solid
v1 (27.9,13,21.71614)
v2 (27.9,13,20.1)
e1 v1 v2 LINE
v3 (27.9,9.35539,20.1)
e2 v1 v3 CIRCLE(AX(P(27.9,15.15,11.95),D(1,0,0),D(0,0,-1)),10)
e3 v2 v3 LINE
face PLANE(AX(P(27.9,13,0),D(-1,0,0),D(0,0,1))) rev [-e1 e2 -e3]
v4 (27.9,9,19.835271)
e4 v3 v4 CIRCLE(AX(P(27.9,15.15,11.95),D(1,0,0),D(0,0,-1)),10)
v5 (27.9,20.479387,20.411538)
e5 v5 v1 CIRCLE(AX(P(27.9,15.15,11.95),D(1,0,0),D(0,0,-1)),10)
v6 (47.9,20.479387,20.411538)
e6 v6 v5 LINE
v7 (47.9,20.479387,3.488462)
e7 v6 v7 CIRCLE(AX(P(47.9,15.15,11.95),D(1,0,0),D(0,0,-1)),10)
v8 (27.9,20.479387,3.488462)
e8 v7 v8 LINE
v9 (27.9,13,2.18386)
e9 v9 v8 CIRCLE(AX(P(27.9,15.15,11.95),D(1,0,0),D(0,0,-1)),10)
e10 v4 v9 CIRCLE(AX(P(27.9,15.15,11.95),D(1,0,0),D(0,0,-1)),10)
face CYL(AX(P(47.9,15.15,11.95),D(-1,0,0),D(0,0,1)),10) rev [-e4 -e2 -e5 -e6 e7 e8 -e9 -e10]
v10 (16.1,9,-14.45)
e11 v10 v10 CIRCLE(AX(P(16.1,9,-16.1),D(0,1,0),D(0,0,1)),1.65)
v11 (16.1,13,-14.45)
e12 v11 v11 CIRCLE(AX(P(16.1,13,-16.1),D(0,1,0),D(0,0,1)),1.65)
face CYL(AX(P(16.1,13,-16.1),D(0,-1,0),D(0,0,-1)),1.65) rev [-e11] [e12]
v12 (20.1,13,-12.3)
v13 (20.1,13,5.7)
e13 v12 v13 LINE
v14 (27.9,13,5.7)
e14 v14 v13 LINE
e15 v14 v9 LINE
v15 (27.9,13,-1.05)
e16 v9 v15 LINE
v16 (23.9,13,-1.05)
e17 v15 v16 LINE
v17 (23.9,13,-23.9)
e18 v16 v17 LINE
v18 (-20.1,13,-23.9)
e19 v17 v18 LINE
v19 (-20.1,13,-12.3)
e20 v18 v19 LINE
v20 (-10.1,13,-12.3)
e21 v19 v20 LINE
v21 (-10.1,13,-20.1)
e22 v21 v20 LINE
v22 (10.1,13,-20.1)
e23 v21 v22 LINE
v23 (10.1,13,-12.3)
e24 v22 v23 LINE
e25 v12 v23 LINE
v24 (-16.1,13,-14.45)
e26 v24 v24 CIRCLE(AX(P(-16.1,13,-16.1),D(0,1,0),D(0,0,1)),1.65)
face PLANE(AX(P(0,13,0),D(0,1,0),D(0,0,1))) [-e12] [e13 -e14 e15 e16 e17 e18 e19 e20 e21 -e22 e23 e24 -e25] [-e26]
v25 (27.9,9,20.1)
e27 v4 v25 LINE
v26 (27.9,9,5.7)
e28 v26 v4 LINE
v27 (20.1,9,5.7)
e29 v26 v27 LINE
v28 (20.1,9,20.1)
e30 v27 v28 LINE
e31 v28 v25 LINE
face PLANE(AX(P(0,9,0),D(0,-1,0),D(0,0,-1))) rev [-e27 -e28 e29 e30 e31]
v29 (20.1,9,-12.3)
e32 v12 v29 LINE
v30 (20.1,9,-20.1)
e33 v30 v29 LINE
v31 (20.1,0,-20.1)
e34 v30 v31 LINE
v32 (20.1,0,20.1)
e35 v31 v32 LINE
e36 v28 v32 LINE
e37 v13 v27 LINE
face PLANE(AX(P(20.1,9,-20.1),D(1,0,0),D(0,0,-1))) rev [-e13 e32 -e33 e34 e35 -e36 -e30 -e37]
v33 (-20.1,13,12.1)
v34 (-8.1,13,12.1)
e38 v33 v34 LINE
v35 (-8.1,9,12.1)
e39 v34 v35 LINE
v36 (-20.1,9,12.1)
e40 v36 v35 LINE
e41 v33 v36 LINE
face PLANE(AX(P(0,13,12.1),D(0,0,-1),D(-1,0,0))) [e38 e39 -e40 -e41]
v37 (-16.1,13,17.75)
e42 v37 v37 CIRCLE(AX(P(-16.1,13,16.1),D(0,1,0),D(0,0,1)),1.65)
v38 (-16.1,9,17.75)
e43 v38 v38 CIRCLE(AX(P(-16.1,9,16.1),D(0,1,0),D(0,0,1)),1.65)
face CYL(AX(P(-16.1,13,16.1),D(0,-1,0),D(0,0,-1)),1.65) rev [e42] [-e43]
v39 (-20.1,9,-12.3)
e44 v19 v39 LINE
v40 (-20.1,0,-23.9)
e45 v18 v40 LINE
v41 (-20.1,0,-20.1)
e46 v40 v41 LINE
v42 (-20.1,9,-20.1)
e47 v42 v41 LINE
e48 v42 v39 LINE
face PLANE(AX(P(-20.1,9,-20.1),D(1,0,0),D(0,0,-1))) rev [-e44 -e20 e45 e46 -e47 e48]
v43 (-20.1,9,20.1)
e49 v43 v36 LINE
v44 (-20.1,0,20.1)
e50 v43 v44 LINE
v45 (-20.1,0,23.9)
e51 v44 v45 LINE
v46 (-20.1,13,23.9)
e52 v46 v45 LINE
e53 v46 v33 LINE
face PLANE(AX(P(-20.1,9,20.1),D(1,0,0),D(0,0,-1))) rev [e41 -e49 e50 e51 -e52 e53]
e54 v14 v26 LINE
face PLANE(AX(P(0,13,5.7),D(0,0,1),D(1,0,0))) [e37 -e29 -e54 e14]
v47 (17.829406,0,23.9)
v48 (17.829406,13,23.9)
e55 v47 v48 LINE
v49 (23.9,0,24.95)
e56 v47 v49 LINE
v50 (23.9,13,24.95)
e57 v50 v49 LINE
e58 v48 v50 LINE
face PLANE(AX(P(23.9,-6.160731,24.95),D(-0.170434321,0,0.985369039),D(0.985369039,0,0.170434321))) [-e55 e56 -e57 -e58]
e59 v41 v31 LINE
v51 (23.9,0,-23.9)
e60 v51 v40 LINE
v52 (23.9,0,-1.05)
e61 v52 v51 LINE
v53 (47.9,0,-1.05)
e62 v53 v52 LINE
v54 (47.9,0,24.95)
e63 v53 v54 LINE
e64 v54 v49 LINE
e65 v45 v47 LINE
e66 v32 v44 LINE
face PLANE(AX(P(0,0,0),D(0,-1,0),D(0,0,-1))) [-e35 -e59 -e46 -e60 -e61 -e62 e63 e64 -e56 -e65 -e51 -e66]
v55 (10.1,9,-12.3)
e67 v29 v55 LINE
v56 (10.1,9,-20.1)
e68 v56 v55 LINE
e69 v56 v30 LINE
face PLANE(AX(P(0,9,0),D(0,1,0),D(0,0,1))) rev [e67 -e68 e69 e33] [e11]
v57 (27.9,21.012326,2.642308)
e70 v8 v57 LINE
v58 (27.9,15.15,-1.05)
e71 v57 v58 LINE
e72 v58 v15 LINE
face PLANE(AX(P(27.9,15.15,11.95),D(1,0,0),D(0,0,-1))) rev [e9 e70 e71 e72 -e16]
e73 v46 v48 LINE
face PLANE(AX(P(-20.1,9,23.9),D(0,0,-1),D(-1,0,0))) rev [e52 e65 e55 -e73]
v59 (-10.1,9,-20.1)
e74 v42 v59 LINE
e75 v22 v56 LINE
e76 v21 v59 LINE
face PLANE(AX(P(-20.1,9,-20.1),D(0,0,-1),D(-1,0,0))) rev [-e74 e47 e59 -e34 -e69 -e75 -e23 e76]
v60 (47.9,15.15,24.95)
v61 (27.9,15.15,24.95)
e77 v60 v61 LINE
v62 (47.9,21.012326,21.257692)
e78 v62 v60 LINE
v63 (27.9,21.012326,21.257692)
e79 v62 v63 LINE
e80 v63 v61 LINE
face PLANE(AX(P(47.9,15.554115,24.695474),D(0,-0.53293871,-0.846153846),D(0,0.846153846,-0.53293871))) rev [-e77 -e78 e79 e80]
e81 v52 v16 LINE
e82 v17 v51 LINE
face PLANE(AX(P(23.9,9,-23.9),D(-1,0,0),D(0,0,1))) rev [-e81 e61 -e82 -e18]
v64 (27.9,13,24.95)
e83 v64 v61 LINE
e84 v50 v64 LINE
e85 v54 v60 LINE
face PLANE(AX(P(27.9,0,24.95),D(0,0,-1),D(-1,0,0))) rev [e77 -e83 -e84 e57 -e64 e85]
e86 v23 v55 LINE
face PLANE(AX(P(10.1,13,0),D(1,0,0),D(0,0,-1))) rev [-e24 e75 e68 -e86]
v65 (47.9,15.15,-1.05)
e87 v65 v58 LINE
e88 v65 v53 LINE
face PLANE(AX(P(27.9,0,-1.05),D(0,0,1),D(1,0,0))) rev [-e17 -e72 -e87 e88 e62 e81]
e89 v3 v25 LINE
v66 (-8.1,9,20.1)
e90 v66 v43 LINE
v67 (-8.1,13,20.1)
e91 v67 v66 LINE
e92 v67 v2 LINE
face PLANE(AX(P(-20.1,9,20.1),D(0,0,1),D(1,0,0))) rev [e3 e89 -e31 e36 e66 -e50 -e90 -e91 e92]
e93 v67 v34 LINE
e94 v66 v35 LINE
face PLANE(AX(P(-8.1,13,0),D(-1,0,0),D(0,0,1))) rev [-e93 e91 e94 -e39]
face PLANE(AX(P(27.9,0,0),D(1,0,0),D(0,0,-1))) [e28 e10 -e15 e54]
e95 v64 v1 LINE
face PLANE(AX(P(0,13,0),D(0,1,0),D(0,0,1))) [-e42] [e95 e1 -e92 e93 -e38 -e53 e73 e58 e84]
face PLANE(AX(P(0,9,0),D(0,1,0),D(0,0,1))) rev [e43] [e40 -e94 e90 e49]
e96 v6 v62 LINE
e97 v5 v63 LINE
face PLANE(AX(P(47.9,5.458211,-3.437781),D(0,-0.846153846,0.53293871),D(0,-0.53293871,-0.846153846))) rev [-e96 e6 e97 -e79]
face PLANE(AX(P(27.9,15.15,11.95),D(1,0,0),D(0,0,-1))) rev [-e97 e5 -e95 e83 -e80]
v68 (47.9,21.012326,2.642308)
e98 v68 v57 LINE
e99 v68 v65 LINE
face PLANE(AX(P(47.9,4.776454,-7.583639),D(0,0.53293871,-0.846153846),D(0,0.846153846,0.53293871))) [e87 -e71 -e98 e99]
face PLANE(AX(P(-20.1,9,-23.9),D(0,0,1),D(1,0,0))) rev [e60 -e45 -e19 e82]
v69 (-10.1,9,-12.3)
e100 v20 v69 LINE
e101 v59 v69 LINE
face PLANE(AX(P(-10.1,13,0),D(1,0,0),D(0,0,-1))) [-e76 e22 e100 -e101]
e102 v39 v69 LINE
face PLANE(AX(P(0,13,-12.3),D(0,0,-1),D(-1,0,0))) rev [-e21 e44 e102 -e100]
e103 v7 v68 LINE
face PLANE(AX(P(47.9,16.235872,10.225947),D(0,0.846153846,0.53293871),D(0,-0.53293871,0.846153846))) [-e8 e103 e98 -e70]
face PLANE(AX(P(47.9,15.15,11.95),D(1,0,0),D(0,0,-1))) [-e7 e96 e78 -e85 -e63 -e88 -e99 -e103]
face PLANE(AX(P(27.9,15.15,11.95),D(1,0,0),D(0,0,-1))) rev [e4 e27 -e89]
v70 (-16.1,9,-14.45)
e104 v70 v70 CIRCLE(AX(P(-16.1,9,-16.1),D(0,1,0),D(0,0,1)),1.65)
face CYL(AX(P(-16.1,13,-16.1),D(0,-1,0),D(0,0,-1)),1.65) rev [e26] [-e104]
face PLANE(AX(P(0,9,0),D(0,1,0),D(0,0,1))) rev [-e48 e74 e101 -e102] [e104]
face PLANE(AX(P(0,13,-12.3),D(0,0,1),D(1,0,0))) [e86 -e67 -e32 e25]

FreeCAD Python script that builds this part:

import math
import FreeCAD as App
import Part
import Sketcher
Q = App.Units.Quantity

doc = App.newDocument("Part")
params = doc.addObject("Spreadsheet::Sheet", "Params")
for row, (alias, value) in enumerate([
    ("sketch1_width", "44 mm"),
    ("sketch1_width2", "40.2 mm"),
    ("sketch1_height", "3.8 mm"),
    ("pad1_length", "9 mm"),
    ("sketch2_width", "9 mm"),
    ("sketch2_height", "26 mm"),
    ("pad2_length", "4 mm"),
    ("sketch3_radius", "10 mm"),
    ("sketch3_height", "26 mm"),
    ("sketch3_length", "1 mm"),
    ("sketch3_width", "15.15 mm"),
    ("pad3_length", "20 mm"),
    ("sketch4_height", "1.05 mm"),
    ("pad4_length", "9 mm"),
    ("sketch5_diameter", "3.3 mm"),
    ("sketch5_width", "4 mm"),
    ("sketch5_width2", "36 mm"),
    ("sketch5_width3", "12 mm"),
    ("sketch5_width4", "10 mm"),
    ("pad5_length", "4 mm"),
], start=1):
    params.set(f"A{row}", alias)
    params.set(f"B{row}", "=" + value)
    params.setAlias(f"B{row}", alias)

body = doc.addObject("PartDesign::Body", "Body")

sketch1 = doc.addObject("Sketcher::SketchObject", "Sketch")
body.addObject(sketch1)
sketch1.AttachmentSupport = (doc.XZ_Plane, [""])
sketch1.MapMode = "FlatFace"
sketch1.addGeometry([
    Part.LineSegment(App.Vector(-20.1, -20.1, 0), App.Vector(20.1, -20.1, 0)),
    Part.LineSegment(App.Vector(20.1, -20.1, 0), App.Vector(20.1, 20.1, 0)),
    Part.LineSegment(App.Vector(20.1, 20.1, 0), App.Vector(-20.1, 20.1, 0)),
    Part.LineSegment(App.Vector(-20.1, 20.1, 0), App.Vector(-20.1, 23.9, 0)),
    Part.LineSegment(App.Vector(-20.1, 23.9, 0), App.Vector(23.9, 23.9, 0)),
    Part.LineSegment(App.Vector(23.9, 23.9, 0), App.Vector(23.9, -23.9, 0)),
    Part.LineSegment(App.Vector(23.9, -23.9, 0), App.Vector(-20.1, -23.9, 0)),
    Part.LineSegment(App.Vector(-20.1, -23.9, 0), App.Vector(-20.1, -20.1, 0)),
], False)
sketch1.addConstraint([
    Sketcher.Constraint("Coincident", 0, 2, 1, 1),
    Sketcher.Constraint("Coincident", 1, 2, 2, 1),
    Sketcher.Constraint("Coincident", 2, 2, 3, 1),
    Sketcher.Constraint("Coincident", 3, 2, 4, 1),
    Sketcher.Constraint("Coincident", 4, 2, 5, 1),
    Sketcher.Constraint("Coincident", 5, 2, 6, 1),
    Sketcher.Constraint("Coincident", 6, 2, 7, 1),
    Sketcher.Constraint("Coincident", 7, 2, 0, 1),
    Sketcher.Constraint("Horizontal", 0),
    Sketcher.Constraint("Vertical", 1),
    Sketcher.Constraint("Horizontal", 2),
    Sketcher.Constraint("Vertical", 3),
    Sketcher.Constraint("Horizontal", 4),
    Sketcher.Constraint("Vertical", 5),
    Sketcher.Constraint("Horizontal", 6),
    Sketcher.Constraint("Vertical", 7),
    Sketcher.Constraint("Symmetric", 0, 2, 2, 2, -1, 1),
    Sketcher.Constraint("Symmetric", 3, 2, 6, 2, -1),
    Sketcher.Constraint("Equal", 2, 1),
    Sketcher.Constraint("DistanceX", 4, 1, 4, 2, Q("44 mm")),
    Sketcher.Constraint("DistanceX", 0, 1, 0, 2, Q("40.2 mm")),
    Sketcher.Constraint("DistanceY", 3, 1, 3, 2, Q("3.8 mm")),
])
sketch1.setExpression("Constraints[19]", "Params.sketch1_width")
sketch1.setExpression("Constraints[20]", "Params.sketch1_width2")
sketch1.setExpression("Constraints[21]", "Params.sketch1_height")
pad1 = doc.addObject("PartDesign::Pad", "Pad")
body.addObject(pad1)
pad1.Profile = sketch1
pad1.setExpression("Length", "Params.pad1_length")
pad1.Reversed = True

sketch2 = doc.addObject("Sketcher::SketchObject", "Sketch001")
body.addObject(sketch2)
sketch2.AttachmentSupport = (doc.YZ_Plane, [""])
sketch2.MapMode = "FlatFace"
sketch2.AttachmentOffset = App.Placement(App.Vector(0, 0, 23.9), App.Rotation())
sketch2.addGeometry([
    Part.LineSegment(App.Vector(9, 24.95, 0), App.Vector(0, 24.95, 0)),
    Part.LineSegment(App.Vector(0, 24.95, 0), App.Vector(0, -1.05, 0)),
    Part.LineSegment(App.Vector(0, -1.05, 0), App.Vector(9, -1.05, 0)),
    Part.LineSegment(App.Vector(9, -1.05, 0), App.Vector(9, 24.95, 0)),
], False)
sketch2.addConstraint([
    Sketcher.Constraint("Coincident", 0, 2, 1, 1),
    Sketcher.Constraint("Coincident", 1, 2, 2, 1),
    Sketcher.Constraint("Coincident", 2, 2, 3, 1),
    Sketcher.Constraint("Coincident", 3, 2, 0, 1),
    Sketcher.Constraint("Horizontal", 0),
    Sketcher.Constraint("Vertical", 1),
    Sketcher.Constraint("Horizontal", 2),
    Sketcher.Constraint("Vertical", 3),
    Sketcher.Constraint("PointOnObject", 0, 2, -2),
    Sketcher.Constraint("DistanceX", 0, 2, 0, 1, Q("9 mm")),
    Sketcher.Constraint("DistanceY", 1, 2, 1, 1, Q("26 mm")),
    Sketcher.Constraint("DistanceY", -1, 1, 0, 2, Q("24.95 mm")),
])
sketch2.setExpression("Constraints[9]", "Params.sketch2_width")
sketch2.setExpression("Constraints[10]", "Params.sketch2_height")
pad2 = doc.addObject("PartDesign::Pad", "Pad001")
body.addObject(pad2)
pad2.Profile = sketch2
pad2.setExpression("Length", "Params.pad2_length")

sketch3 = doc.addObject("Sketcher::SketchObject", "Sketch002")
body.addObject(sketch3)
sketch3.AttachmentSupport = (doc.YZ_Plane, [""])
sketch3.MapMode = "FlatFace"
sketch3.AttachmentOffset = App.Placement(App.Vector(0, 0, 27.9), App.Rotation())
sketch3.addGeometry([
    Part.LineSegment(App.Vector(21.012326, 21.257692, 0), App.Vector(15.15, 24.95, 0)),
    Part.LineSegment(App.Vector(15.15, 24.95, 0), App.Vector(0, 24.95, 0)),
    Part.LineSegment(App.Vector(0, 24.95, 0), App.Vector(0, -1.05, 0)),
    Part.LineSegment(App.Vector(0, -1.05, 0), App.Vector(15.15, -1.05, 0)),
    Part.LineSegment(App.Vector(15.15, -1.05, 0), App.Vector(21.012326, 2.642308, 0)),
    Part.LineSegment(App.Vector(21.012326, 2.642308, 0), App.Vector(20.479387, 3.488462, 0)),
    Part.ArcOfCircle(Part.Circle(App.Vector(15.15, 11.95, 0), App.Vector(0, 0, 1), 10), math.radians(57.795772), math.radians(302.204228)),
    Part.LineSegment(App.Vector(20.479387, 20.411538, 0), App.Vector(21.012326, 21.257692, 0)),
], False)
sketch3.addConstraint([
    Sketcher.Constraint("Coincident", 0, 2, 1, 1),
    Sketcher.Constraint("Coincident", 1, 2, 2, 1),
    Sketcher.Constraint("Coincident", 2, 2, 3, 1),
    Sketcher.Constraint("Coincident", 3, 2, 4, 1),
    Sketcher.Constraint("Coincident", 4, 2, 5, 1),
    Sketcher.Constraint("Coincident", 5, 2, 6, 2),
    Sketcher.Constraint("Coincident", 6, 1, 7, 1),
    Sketcher.Constraint("Coincident", 7, 2, 0, 1),
    Sketcher.Constraint("Horizontal", 1),
    Sketcher.Constraint("Vertical", 2),
    Sketcher.Constraint("Horizontal", 3),
    Sketcher.Constraint("PointOnObject", 1, 2, -2),
    Sketcher.Constraint("Perpendicular", 4, 5),
    Sketcher.Constraint("Perpendicular", 0, 7),
    Sketcher.Constraint("Vertical", 6, 3, 0, 2),
    Sketcher.Constraint("Vertical", 0, 2, 3, 2),
    Sketcher.Constraint("Vertical", 5, 2, 6, 1),
    Sketcher.Constraint("Vertical", 4, 2, 7, 2),
    Sketcher.Constraint("Equal", 0, 4),
    Sketcher.Constraint("Radius", 6, Q("10 mm")),
    Sketcher.Constraint("DistanceY", 2, 2, 2, 1, Q("26 mm")),
    Sketcher.Constraint("Distance", 5, Q("1 mm")),
    Sketcher.Constraint("DistanceX", 1, 2, 1, 1, Q("15.15 mm")),
    Sketcher.Constraint("DistanceY", -1, 1, 6, 3, Q("11.95 mm")),
    Sketcher.Constraint("DistanceY", -1, 1, 5, 2, Q("3.488462 mm")),
])
sketch3.setExpression("Constraints[19]", "Params.sketch3_radius")
sketch3.setExpression("Constraints[20]", "Params.sketch3_height")
sketch3.setExpression("Constraints[21]", "Params.sketch3_length")
sketch3.setExpression("Constraints[22]", "Params.sketch3_width")
pad3 = doc.addObject("PartDesign::Pad", "Pad002")
body.addObject(pad3)
pad3.Profile = sketch3
pad3.setExpression("Length", "Params.pad3_length")

sketch4 = doc.addObject("Sketcher::SketchObject", "Sketch003")
body.addObject(sketch4)
sketch4.AttachmentSupport = (doc.XZ_Plane, [""])
sketch4.MapMode = "FlatFace"
sketch4.AttachmentOffset = App.Placement(App.Vector(0, 0, -9), App.Rotation())
sketch4.addGeometry([
    Part.LineSegment(App.Vector(17.829406, 23.9, 0), App.Vector(23.9, 24.95, 0)),
    Part.LineSegment(App.Vector(23.9, 24.95, 0), App.Vector(23.9, 23.9, 0)),
    Part.LineSegment(App.Vector(23.9, 23.9, 0), App.Vector(17.829406, 23.9, 0)),
], False)
sketch4.addConstraint([
    Sketcher.Constraint("Coincident", 0, 2, 1, 1),
    Sketcher.Constraint("Coincident", 1, 2, 2, 1),
    Sketcher.Constraint("Coincident", 2, 2, 0, 1),
    Sketcher.Constraint("Vertical", 1),
    Sketcher.Constraint("Horizontal", 2),
    Sketcher.Constraint("DistanceY", 1, 2, 1, 1, Q("1.05 mm")),
    Sketcher.Constraint("DistanceX", -1, 1, 0, 2, Q("23.9 mm")),
    Sketcher.Constraint("DistanceY", -1, 1, 1, 2, Q("23.9 mm")),
    Sketcher.Constraint("Distance", 0, Q("6.160731 mm")),
])
sketch4.setExpression("Constraints[5]", "Params.sketch4_height")
pad4 = doc.addObject("PartDesign::Pad", "Pad003")
body.addObject(pad4)
pad4.Profile = sketch4
pad4.setExpression("Length", "Params.pad4_length")

sketch5 = doc.addObject("Sketcher::SketchObject", "Sketch004")
body.addObject(sketch5)
sketch5.AttachmentSupport = (doc.XZ_Plane, [""])
sketch5.MapMode = "FlatFace"
sketch5.AttachmentOffset = App.Placement(App.Vector(0, 0, -9), App.Rotation())
sketch5.addGeometry([
    Part.LineSegment(App.Vector(-20.1, 12.1, 0), App.Vector(-20.1, 23.9, 0)),
    Part.LineSegment(App.Vector(-20.1, 23.9, 0), App.Vector(17.829406, 23.9, 0)),
    Part.LineSegment(App.Vector(17.829406, 23.9, 0), App.Vector(23.9, 24.95, 0)),
    Part.LineSegment(App.Vector(23.9, 24.95, 0), App.Vector(27.9, 24.95, 0)),
    Part.LineSegment(App.Vector(27.9, 24.95, 0), App.Vector(27.9, 20.1, 0)),
    Part.LineSegment(App.Vector(27.9, 20.1, 0), App.Vector(-8.1, 20.1, 0)),
    Part.LineSegment(App.Vector(-8.1, 20.1, 0), App.Vector(-8.1, 12.1, 0)),
    Part.LineSegment(App.Vector(-8.1, 12.1, 0), App.Vector(-20.1, 12.1, 0)),
    Part.Circle(App.Vector(-16.1, 16.1, 0), App.Vector(0, 0, 1), 1.65),
    Part.LineSegment(App.Vector(23.9, -23.9, 0), App.Vector(-20.1, -23.9, 0)),
    Part.LineSegment(App.Vector(-20.1, -23.9, 0), App.Vector(-20.1, -12.3, 0)),
    Part.LineSegment(App.Vector(-20.1, -12.3, 0), App.Vector(-10.1, -12.3, 0)),
    Part.LineSegment(App.Vector(-10.1, -12.3, 0), App.Vector(-10.1, -20.1, 0)),
    Part.LineSegment(App.Vector(-10.1, -20.1, 0), App.Vector(10.1, -20.1, 0)),
    Part.LineSegment(App.Vector(10.1, -20.1, 0), App.Vector(10.1, -12.3, 0)),
    Part.LineSegment(App.Vector(10.1, -12.3, 0), App.Vector(20.1, -12.3, 0)),
    Part.LineSegment(App.Vector(20.1, -12.3, 0), App.Vector(20.1, 5.7, 0)),
    Part.LineSegment(App.Vector(20.1, 5.7, 0), App.Vector(27.9, 5.7, 0)),
    Part.LineSegment(App.Vector(27.9, 5.7, 0), App.Vector(27.9, -1.05, 0)),
    Part.LineSegment(App.Vector(27.9, -1.05, 0), App.Vector(23.9, -1.05, 0)),
    Part.LineSegment(App.Vector(23.9, -1.05, 0), App.Vector(23.9, -23.9, 0)),
    Part.Circle(App.Vector(16.1, -16.1, 0), App.Vector(0, 0, 1), 1.65),
    Part.Circle(App.Vector(-16.1, -16.1, 0), App.Vector(0, 0, 1), 1.65),
], False)
sketch5.addConstraint([
    Sketcher.Constraint("Coincident", 0, 2, 1, 1),
    Sketcher.Constraint("Coincident", 1, 2, 2, 1),
    Sketcher.Constraint("Coincident", 2, 2, 3, 1),
    Sketcher.Constraint("Coincident", 3, 2, 4, 1),
    Sketcher.Constraint("Coincident", 4, 2, 5, 1),
    Sketcher.Constraint("Coincident", 5, 2, 6, 1),
    Sketcher.Constraint("Coincident", 6, 2, 7, 1),
    Sketcher.Constraint("Coincident", 7, 2, 0, 1),
    Sketcher.Constraint("Coincident", 9, 2, 10, 1),
    Sketcher.Constraint("Coincident", 10, 2, 11, 1),
    Sketcher.Constraint("Coincident", 11, 2, 12, 1),
    Sketcher.Constraint("Coincident", 12, 2, 13, 1),
    Sketcher.Constraint("Coincident", 13, 2, 14, 1),
    Sketcher.Constraint("Coincident", 14, 2, 15, 1),
    Sketcher.Constraint("Coincident", 15, 2, 16, 1),
    Sketcher.Constraint("Coincident", 16, 2, 17, 1),
    Sketcher.Constraint("Coincident", 17, 2, 18, 1),
    Sketcher.Constraint("Coincident", 18, 2, 19, 1),
    Sketcher.Constraint("Coincident", 19, 2, 20, 1),
    Sketcher.Constraint("Coincident", 20, 2, 9, 1),
    Sketcher.Constraint("Vertical", 0),
    Sketcher.Constraint("Horizontal", 1),
    Sketcher.Constraint("Horizontal", 3),
    Sketcher.Constraint("Vertical", 4),
    Sketcher.Constraint("Horizontal", 5),
    Sketcher.Constraint("Vertical", 6),
    Sketcher.Constraint("Horizontal", 7),
    Sketcher.Constraint("Horizontal", 9),
    Sketcher.Constraint("Vertical", 10),
    Sketcher.Constraint("Horizontal", 11),
    Sketcher.Constraint("Vertical", 12),
    Sketcher.Constraint("Horizontal", 13),
    Sketcher.Constraint("Vertical", 14),
    Sketcher.Constraint("Horizontal", 15),
    Sketcher.Constraint("Vertical", 16),
    Sketcher.Constraint("Horizontal", 17),
    Sketcher.Constraint("Vertical", 18),
    Sketcher.Constraint("Horizontal", 19),
    Sketcher.Constraint("Vertical", 20),
    Sketcher.Constraint("Equal", 8, 21),
    Sketcher.Constraint("Equal", 21, 22),
    Sketcher.Constraint("Symmetric", 8, 3, 21, 3, -1, 1),
    Sketcher.Constraint("Symmetric", 21, 3, 22, 3, -2),
    Sketcher.Constraint("Symmetric", 11, 2, 14, 2, -2),
    Sketcher.Constraint("Symmetric", 0, 2, 9, 2, -1),
    Sketcher.Constraint("Vertical", 4, 2, 17, 2),
    Sketcher.Constraint("Vertical", 2, 2, 19, 2),
    Sketcher.Constraint("Equal", 11, 15),
    Sketcher.Constraint("Equal", 17, 12),
    Sketcher.Constraint("Diameter", 8, Q("3.3 mm")),
    Sketcher.Constraint("DistanceX", 3, 1, 3, 2, Q("4 mm")),
    Sketcher.Constraint("DistanceX", 5, 2, 5, 1, Q("36 mm")),
    Sketcher.Constraint("DistanceX", 7, 2, 7, 1, Q("12 mm")),
    Sketcher.Constraint("DistanceX", 11, 1, 11, 2, Q("10 mm")),
    Sketcher.Constraint("DistanceY", 6, 2, 6, 1, Q("8 mm")),
    Sketcher.Constraint("DistanceY", 16, 1, 16, 2, Q("18 mm")),
    Sketcher.Constraint("DistanceX", 13, 1, 13, 2, Q("20.2 mm")),
    Sketcher.Constraint("DistanceY", 0, 1, 0, 2, Q("11.8 mm")),
    Sketcher.Constraint("DistanceY", 10, 1, 10, 2, Q("11.6 mm")),
    Sketcher.Constraint("DistanceX", 0, 2, 8, 3, Q("4 mm")),
    Sketcher.Constraint("DistanceY", 22, 3, 0, 2, Q("40 mm")),
    Sketcher.Constraint("DistanceY", 8, 3, 4, 2, Q("4 mm")),
    Sketcher.Constraint("DistanceY", 4, 2, 4, 1, Q("4.85 mm")),
    Sketcher.Constraint("DistanceY", 18, 2, 18, 1, Q("6.75 mm")),
    Sketcher.Constraint("Distance", 2, Q("6.160731 mm")),
])
sketch5.setExpression("Constraints[49]", "Params.sketch5_diameter")
sketch5.setExpression("Constraints[50]", "Params.sketch5_width")
sketch5.setExpression("Constraints[51]", "Params.sketch5_width2")
sketch5.setExpression("Constraints[52]", "Params.sketch5_width3")
sketch5.setExpression("Constraints[53]", "Params.sketch5_width4")
pad5 = doc.addObject("PartDesign::Pad", "Pad004")
body.addObject(pad5)
pad5.Profile = sketch5
pad5.setExpression("Length", "Params.pad5_length")
pad5.Reversed = True

doc.recompute()
